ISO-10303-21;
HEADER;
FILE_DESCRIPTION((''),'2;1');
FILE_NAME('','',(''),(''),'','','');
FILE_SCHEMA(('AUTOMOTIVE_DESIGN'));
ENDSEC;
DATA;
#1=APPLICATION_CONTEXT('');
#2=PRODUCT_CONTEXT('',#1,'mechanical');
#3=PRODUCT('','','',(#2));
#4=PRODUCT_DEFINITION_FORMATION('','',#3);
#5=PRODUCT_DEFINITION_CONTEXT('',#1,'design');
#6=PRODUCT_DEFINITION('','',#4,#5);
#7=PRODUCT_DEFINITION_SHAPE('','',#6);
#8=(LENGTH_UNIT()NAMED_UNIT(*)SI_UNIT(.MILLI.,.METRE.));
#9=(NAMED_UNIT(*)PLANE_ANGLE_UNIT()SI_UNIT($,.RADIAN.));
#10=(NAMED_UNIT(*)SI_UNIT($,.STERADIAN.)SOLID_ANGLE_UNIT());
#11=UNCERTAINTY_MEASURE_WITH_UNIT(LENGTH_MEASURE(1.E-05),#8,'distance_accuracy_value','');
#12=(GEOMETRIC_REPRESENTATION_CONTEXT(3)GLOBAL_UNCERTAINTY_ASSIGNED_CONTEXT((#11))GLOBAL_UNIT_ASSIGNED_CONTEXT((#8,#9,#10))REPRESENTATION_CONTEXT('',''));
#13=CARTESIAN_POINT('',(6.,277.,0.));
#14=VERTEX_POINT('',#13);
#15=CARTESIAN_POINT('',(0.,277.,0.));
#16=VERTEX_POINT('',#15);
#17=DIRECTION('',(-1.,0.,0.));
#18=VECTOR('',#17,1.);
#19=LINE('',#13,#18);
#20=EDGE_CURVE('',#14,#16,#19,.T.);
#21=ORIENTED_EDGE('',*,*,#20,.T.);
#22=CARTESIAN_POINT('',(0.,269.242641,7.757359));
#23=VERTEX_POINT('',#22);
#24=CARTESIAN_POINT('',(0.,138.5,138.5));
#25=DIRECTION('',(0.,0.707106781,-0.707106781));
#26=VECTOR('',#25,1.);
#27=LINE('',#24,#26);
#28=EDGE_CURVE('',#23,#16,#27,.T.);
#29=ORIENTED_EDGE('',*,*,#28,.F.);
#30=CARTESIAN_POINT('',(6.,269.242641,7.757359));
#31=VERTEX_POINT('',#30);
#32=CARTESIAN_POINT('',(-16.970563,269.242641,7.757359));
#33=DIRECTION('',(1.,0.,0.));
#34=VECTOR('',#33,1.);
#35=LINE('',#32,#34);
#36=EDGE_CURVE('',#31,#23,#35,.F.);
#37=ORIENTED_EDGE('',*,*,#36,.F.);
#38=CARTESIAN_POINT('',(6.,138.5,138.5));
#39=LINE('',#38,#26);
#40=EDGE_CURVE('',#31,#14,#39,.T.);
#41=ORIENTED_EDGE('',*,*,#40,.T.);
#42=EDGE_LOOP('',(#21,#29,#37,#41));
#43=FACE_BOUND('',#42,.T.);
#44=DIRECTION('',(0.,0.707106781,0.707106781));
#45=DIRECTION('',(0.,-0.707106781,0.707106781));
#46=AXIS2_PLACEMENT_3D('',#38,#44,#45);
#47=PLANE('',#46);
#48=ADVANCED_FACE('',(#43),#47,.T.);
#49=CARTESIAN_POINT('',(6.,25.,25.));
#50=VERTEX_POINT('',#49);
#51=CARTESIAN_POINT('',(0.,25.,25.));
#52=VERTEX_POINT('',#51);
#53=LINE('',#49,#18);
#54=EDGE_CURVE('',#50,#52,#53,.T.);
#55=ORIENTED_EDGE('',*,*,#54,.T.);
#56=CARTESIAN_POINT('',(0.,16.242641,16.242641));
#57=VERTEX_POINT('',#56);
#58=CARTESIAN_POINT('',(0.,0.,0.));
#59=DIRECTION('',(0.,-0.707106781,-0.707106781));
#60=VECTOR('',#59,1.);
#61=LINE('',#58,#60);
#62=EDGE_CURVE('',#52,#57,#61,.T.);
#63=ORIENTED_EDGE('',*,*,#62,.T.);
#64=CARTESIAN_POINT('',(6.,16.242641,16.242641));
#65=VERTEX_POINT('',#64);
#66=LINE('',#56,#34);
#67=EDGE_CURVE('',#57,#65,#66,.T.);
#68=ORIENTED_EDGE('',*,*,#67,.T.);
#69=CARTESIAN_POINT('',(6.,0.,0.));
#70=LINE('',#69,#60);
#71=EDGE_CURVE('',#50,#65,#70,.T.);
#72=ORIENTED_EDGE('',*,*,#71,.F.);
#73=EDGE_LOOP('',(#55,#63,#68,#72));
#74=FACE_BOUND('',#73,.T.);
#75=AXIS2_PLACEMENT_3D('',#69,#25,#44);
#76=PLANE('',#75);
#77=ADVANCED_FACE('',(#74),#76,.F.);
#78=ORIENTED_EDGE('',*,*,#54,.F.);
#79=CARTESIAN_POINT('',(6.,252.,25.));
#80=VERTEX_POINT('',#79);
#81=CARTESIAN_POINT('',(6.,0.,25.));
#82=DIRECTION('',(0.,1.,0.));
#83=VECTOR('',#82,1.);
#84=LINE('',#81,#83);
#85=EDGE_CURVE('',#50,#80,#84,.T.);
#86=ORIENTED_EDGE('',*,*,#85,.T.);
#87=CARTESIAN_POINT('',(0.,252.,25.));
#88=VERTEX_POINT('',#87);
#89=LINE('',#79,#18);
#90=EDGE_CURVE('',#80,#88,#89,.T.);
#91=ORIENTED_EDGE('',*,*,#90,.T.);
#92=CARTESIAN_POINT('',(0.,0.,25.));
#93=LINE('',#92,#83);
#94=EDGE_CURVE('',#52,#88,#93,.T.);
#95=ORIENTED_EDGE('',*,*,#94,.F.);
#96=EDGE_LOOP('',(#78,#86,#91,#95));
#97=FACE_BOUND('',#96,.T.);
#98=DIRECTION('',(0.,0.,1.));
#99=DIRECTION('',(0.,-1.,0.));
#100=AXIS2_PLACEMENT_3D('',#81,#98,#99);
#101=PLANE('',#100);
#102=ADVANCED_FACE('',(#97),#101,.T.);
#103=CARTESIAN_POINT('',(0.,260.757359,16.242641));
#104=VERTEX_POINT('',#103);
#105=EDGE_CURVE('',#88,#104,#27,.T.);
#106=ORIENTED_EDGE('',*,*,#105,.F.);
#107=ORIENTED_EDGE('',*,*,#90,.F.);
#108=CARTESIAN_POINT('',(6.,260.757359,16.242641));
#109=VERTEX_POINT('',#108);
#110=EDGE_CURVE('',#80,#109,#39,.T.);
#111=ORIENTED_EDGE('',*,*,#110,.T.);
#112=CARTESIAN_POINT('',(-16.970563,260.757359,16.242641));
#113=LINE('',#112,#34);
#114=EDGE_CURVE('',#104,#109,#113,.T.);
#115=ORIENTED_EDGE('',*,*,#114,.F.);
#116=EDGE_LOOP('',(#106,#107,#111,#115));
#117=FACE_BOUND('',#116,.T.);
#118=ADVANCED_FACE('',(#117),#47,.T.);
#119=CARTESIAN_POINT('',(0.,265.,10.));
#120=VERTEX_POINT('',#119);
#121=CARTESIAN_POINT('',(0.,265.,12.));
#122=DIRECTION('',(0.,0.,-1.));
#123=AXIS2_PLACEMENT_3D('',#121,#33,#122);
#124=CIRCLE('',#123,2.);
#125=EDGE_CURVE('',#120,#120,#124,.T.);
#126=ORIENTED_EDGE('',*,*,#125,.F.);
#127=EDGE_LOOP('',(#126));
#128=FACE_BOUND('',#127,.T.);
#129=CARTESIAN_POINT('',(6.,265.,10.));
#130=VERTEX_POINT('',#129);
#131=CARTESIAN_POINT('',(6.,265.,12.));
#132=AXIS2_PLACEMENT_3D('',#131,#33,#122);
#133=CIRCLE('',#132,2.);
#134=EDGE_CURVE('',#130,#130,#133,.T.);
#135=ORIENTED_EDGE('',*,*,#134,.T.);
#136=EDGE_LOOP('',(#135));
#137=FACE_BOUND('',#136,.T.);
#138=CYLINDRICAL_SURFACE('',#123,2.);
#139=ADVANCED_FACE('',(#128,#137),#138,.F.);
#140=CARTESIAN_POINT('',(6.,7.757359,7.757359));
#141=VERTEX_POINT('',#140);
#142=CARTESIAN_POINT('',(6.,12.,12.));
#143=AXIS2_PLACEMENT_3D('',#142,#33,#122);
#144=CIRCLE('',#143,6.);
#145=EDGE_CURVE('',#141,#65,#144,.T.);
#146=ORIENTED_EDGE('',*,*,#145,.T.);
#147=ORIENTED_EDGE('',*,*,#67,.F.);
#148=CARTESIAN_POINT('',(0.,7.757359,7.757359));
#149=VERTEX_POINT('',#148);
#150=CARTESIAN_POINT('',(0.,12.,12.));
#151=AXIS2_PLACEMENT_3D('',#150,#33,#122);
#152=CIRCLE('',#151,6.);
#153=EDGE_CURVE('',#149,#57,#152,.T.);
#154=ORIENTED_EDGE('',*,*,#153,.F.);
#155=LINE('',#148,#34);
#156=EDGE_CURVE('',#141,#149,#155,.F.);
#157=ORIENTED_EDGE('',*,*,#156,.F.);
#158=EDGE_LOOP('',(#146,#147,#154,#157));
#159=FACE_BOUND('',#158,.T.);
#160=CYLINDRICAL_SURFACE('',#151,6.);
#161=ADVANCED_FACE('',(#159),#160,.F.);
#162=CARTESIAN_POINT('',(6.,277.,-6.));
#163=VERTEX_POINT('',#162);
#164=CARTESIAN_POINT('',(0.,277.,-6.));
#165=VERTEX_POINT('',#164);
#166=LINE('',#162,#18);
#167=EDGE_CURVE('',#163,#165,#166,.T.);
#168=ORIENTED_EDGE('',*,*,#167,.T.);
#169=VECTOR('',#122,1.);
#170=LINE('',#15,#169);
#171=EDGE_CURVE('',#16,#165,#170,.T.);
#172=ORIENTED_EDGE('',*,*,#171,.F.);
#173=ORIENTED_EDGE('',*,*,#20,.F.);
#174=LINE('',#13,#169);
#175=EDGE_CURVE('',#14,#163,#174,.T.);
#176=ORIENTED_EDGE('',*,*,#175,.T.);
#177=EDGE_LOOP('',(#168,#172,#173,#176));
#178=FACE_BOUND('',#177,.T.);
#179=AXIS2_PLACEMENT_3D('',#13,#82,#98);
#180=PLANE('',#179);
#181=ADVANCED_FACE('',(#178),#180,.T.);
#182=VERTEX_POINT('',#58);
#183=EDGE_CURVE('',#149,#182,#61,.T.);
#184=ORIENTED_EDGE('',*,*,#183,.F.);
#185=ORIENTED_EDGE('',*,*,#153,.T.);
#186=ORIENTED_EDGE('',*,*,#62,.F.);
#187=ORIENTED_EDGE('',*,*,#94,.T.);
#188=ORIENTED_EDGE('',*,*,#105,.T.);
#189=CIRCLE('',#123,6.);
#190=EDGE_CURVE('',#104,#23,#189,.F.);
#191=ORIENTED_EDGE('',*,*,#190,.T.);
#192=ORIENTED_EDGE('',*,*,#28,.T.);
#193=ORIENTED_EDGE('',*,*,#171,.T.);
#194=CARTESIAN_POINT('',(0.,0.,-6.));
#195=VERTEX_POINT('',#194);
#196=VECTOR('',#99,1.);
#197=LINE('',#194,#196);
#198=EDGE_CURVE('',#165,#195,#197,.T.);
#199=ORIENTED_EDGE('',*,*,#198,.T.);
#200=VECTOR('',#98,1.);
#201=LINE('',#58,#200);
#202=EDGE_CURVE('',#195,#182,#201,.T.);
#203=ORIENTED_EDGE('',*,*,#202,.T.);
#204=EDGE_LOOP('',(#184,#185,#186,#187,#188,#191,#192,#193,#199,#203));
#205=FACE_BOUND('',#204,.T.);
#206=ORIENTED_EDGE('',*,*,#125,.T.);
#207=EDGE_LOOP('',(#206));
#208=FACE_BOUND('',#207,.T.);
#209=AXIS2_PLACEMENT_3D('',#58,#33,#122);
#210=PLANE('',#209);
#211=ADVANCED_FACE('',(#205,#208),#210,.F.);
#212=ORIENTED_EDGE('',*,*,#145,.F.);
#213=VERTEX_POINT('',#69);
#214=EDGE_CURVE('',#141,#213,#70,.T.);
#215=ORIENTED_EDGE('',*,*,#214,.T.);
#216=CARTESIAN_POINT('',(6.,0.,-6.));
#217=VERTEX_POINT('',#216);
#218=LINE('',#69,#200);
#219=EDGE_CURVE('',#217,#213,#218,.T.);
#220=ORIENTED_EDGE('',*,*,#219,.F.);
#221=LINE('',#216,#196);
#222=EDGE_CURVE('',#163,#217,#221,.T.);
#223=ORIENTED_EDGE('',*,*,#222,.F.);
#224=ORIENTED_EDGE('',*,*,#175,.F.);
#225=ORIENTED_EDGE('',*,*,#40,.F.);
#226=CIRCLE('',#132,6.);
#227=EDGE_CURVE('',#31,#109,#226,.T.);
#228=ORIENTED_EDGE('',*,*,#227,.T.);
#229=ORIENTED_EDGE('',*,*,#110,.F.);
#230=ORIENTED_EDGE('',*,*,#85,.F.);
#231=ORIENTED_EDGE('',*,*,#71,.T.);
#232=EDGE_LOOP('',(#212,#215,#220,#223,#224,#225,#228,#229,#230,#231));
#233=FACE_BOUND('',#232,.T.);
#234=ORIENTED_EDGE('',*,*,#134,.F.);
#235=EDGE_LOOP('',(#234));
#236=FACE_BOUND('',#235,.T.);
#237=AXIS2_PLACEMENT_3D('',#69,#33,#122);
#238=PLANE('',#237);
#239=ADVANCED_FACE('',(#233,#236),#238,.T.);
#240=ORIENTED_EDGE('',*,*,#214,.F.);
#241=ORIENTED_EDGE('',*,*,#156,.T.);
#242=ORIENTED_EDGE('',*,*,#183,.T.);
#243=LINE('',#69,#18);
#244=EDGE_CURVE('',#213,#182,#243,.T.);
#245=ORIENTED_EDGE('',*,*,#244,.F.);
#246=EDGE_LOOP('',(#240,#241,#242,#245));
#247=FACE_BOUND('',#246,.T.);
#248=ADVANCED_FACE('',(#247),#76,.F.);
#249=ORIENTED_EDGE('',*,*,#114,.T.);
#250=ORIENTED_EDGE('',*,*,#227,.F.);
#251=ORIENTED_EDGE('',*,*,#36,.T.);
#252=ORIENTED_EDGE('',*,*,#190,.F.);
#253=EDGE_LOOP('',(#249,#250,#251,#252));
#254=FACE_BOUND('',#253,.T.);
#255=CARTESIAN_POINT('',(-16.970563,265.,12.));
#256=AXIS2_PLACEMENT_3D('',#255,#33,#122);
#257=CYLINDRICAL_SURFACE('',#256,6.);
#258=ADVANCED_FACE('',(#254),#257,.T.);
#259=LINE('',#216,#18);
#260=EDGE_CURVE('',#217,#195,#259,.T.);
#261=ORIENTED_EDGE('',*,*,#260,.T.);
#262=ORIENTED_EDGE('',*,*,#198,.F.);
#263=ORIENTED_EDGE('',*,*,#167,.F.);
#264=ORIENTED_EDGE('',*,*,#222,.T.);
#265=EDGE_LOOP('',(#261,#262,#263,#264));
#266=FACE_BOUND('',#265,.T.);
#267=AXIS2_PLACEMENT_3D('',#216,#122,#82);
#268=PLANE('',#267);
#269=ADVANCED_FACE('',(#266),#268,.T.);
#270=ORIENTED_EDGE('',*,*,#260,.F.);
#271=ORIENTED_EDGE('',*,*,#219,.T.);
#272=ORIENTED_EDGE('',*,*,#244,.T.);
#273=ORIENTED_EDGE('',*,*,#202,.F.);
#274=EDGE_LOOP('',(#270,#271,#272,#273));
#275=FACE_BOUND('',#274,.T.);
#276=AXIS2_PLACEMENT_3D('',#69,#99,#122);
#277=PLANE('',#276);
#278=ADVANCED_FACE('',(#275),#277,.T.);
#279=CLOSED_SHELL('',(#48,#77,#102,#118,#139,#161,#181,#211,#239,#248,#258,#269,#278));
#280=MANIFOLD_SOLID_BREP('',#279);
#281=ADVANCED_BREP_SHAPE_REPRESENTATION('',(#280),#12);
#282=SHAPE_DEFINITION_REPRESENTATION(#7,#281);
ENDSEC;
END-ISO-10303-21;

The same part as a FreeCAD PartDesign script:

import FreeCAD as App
import Part
import Sketcher
from FreeCAD import Vector
Q = App.Units.Quantity

doc = App.newDocument("Part")
params = doc.addObject("Spreadsheet::Sheet", "Params")
for row, (alias, value) in enumerate([
    ("sketch1_width", "227 mm"),
    ("sketch1_width2", "277 mm"),
    ("sketch1_height", "6 mm"),
    ("pad1_length", "6 mm"),
    ("sketch2_diameter", "12 mm"),
    ("pad2_length", "6 mm"),
    ("sketch3_diameter", "4 mm"),
    ("sketch3_diameter2", "12 mm"),
], start=1):
    params.set(f"A{row}", alias)
    params.set(f"B{row}", "=" + value)
    params.setAlias(f"B{row}", alias)

body = doc.addObject("PartDesign::Body", "Body")

# Sketch on YZ plane
sketch1 = body.newObject("Sketcher::SketchObject", "Sketch")
sketch1.AttachmentSupport = (doc.getObject("YZ_Plane"), [""])
sketch1.MapMode = "FlatFace"
sketch1.addGeometry([
    Part.LineSegment(Vector(277, -6, 0), Vector(277, 0, 0)),  # 0
    Part.LineSegment(Vector(277, 0, 0), Vector(252, 25, 0)),  # 1
    Part.LineSegment(Vector(252, 25, 0), Vector(25, 25, 0)),  # 2
    Part.LineSegment(Vector(25, 25, 0), Vector(0, 0, 0)),  # 3
    Part.LineSegment(Vector(0, 0, 0), Vector(0, -6, 0)),  # 4
    Part.LineSegment(Vector(0, -6, 0), Vector(277, -6, 0)),  # 5
], False)
sketch1.addConstraint([
    Sketcher.Constraint("Coincident", 0, 2, 1, 1),
    Sketcher.Constraint("Coincident", 1, 2, 2, 1),
    Sketcher.Constraint("Coincident", 2, 2, 3, 1),
    Sketcher.Constraint("Coincident", 3, 2, 4, 1),
    Sketcher.Constraint("Coincident", 4, 2, 5, 1),
    Sketcher.Constraint("Coincident", 5, 2, 0, 1),
    Sketcher.Constraint("Vertical", 0),
    Sketcher.Constraint("Horizontal", 2),
    Sketcher.Constraint("Vertical", 4),
    Sketcher.Constraint("Horizontal", 5),
    Sketcher.Constraint("Coincident", 3, 2, -1, 1),
    Sketcher.Constraint("PointOnObject", 0, 2, -1),
    Sketcher.Constraint("Perpendicular", 1, 3),
    Sketcher.Constraint("Equal", 1, 3),
    Sketcher.Constraint("DistanceX", 2, 2, 2, 1, Q("227 mm")),
    Sketcher.Constraint("DistanceX", 5, 1, 5, 2, Q("277 mm")),
    Sketcher.Constraint("DistanceY", 0, 1, 0, 2, Q("6 mm")),
])
sketch1.setExpression("Constraints[14]", "Params.sketch1_width")
sketch1.setExpression("Constraints[15]", "Params.sketch1_width2")
sketch1.setExpression("Constraints[16]", "Params.sketch1_height")
pad1 = body.newObject("PartDesign::Pad", "Pad")
pad1.Profile = sketch1
pad1.setExpression("Length", "Params.pad1_length")

# Sketch on YZ plane
sketch2 = body.newObject("Sketcher::SketchObject", "Sketch001")
sketch2.AttachmentSupport = (doc.getObject("YZ_Plane"), [""])
sketch2.MapMode = "FlatFace"
sketch2.AttachmentOffset = App.Placement(Vector(0, 0, 6), App.Rotation())
sketch2.addGeometry(Part.Circle(Vector(265, 12, 0), Vector(0, 0, 1), 6), False)
sketch2.addConstraint([
    Sketcher.Constraint("Diameter", 0, Q("12 mm")),
    Sketcher.Constraint("DistanceX", -1, 1, 0, 3, Q("265 mm")),
    Sketcher.Constraint("DistanceY", -1, 1, 0, 3, Q("12 mm")),
])
sketch2.setExpression("Constraints[0]", "Params.sketch2_diameter")
pad2 = body.newObject("PartDesign::Pad", "Pad001")
pad2.Profile = sketch2
pad2.setExpression("Length", "Params.pad2_length")
pad2.Reversed = True

# Sketch on YZ plane
sketch3 = body.newObject("Sketcher::SketchObject", "Sketch002")
sketch3.AttachmentSupport = (doc.getObject("YZ_Plane"), [""])
sketch3.MapMode = "FlatFace"
sketch3.AttachmentOffset = App.Placement(Vector(0, 0, 6), App.Rotation())
sketch3.addGeometry([
    Part.Circle(Vector(265, 12, 0), Vector(0, 0, 1), 2),
    Part.Circle(Vector(12, 12, 0), Vector(0, 0, 1), 6),
], False)
sketch3.addConstraint([
    Sketcher.Constraint("Horizontal", 0, 3, 1, 3),
    Sketcher.Constraint("Diameter", 0, Q("4 mm")),
    Sketcher.Constraint("Diameter", 1, Q("12 mm")),
    Sketcher.Constraint("DistanceX", -1, 1, 0, 3, Q("265 mm")),
    Sketcher.Constraint("DistanceY", -1, 1, 0, 3, Q("12 mm")),
    Sketcher.Constraint("DistanceX", -1, 1, 1, 3, Q("12 mm")),
])
sketch3.setExpression("Constraints[1]", "Params.sketch3_diameter")
sketch3.setExpression("Constraints[2]", "Params.sketch3_diameter2")
pocket1 = body.newObject("PartDesign::Pocket", "Pocket")
pocket1.Profile = sketch3
pocket1.Type = "ThroughAll"

doc.recompute()
